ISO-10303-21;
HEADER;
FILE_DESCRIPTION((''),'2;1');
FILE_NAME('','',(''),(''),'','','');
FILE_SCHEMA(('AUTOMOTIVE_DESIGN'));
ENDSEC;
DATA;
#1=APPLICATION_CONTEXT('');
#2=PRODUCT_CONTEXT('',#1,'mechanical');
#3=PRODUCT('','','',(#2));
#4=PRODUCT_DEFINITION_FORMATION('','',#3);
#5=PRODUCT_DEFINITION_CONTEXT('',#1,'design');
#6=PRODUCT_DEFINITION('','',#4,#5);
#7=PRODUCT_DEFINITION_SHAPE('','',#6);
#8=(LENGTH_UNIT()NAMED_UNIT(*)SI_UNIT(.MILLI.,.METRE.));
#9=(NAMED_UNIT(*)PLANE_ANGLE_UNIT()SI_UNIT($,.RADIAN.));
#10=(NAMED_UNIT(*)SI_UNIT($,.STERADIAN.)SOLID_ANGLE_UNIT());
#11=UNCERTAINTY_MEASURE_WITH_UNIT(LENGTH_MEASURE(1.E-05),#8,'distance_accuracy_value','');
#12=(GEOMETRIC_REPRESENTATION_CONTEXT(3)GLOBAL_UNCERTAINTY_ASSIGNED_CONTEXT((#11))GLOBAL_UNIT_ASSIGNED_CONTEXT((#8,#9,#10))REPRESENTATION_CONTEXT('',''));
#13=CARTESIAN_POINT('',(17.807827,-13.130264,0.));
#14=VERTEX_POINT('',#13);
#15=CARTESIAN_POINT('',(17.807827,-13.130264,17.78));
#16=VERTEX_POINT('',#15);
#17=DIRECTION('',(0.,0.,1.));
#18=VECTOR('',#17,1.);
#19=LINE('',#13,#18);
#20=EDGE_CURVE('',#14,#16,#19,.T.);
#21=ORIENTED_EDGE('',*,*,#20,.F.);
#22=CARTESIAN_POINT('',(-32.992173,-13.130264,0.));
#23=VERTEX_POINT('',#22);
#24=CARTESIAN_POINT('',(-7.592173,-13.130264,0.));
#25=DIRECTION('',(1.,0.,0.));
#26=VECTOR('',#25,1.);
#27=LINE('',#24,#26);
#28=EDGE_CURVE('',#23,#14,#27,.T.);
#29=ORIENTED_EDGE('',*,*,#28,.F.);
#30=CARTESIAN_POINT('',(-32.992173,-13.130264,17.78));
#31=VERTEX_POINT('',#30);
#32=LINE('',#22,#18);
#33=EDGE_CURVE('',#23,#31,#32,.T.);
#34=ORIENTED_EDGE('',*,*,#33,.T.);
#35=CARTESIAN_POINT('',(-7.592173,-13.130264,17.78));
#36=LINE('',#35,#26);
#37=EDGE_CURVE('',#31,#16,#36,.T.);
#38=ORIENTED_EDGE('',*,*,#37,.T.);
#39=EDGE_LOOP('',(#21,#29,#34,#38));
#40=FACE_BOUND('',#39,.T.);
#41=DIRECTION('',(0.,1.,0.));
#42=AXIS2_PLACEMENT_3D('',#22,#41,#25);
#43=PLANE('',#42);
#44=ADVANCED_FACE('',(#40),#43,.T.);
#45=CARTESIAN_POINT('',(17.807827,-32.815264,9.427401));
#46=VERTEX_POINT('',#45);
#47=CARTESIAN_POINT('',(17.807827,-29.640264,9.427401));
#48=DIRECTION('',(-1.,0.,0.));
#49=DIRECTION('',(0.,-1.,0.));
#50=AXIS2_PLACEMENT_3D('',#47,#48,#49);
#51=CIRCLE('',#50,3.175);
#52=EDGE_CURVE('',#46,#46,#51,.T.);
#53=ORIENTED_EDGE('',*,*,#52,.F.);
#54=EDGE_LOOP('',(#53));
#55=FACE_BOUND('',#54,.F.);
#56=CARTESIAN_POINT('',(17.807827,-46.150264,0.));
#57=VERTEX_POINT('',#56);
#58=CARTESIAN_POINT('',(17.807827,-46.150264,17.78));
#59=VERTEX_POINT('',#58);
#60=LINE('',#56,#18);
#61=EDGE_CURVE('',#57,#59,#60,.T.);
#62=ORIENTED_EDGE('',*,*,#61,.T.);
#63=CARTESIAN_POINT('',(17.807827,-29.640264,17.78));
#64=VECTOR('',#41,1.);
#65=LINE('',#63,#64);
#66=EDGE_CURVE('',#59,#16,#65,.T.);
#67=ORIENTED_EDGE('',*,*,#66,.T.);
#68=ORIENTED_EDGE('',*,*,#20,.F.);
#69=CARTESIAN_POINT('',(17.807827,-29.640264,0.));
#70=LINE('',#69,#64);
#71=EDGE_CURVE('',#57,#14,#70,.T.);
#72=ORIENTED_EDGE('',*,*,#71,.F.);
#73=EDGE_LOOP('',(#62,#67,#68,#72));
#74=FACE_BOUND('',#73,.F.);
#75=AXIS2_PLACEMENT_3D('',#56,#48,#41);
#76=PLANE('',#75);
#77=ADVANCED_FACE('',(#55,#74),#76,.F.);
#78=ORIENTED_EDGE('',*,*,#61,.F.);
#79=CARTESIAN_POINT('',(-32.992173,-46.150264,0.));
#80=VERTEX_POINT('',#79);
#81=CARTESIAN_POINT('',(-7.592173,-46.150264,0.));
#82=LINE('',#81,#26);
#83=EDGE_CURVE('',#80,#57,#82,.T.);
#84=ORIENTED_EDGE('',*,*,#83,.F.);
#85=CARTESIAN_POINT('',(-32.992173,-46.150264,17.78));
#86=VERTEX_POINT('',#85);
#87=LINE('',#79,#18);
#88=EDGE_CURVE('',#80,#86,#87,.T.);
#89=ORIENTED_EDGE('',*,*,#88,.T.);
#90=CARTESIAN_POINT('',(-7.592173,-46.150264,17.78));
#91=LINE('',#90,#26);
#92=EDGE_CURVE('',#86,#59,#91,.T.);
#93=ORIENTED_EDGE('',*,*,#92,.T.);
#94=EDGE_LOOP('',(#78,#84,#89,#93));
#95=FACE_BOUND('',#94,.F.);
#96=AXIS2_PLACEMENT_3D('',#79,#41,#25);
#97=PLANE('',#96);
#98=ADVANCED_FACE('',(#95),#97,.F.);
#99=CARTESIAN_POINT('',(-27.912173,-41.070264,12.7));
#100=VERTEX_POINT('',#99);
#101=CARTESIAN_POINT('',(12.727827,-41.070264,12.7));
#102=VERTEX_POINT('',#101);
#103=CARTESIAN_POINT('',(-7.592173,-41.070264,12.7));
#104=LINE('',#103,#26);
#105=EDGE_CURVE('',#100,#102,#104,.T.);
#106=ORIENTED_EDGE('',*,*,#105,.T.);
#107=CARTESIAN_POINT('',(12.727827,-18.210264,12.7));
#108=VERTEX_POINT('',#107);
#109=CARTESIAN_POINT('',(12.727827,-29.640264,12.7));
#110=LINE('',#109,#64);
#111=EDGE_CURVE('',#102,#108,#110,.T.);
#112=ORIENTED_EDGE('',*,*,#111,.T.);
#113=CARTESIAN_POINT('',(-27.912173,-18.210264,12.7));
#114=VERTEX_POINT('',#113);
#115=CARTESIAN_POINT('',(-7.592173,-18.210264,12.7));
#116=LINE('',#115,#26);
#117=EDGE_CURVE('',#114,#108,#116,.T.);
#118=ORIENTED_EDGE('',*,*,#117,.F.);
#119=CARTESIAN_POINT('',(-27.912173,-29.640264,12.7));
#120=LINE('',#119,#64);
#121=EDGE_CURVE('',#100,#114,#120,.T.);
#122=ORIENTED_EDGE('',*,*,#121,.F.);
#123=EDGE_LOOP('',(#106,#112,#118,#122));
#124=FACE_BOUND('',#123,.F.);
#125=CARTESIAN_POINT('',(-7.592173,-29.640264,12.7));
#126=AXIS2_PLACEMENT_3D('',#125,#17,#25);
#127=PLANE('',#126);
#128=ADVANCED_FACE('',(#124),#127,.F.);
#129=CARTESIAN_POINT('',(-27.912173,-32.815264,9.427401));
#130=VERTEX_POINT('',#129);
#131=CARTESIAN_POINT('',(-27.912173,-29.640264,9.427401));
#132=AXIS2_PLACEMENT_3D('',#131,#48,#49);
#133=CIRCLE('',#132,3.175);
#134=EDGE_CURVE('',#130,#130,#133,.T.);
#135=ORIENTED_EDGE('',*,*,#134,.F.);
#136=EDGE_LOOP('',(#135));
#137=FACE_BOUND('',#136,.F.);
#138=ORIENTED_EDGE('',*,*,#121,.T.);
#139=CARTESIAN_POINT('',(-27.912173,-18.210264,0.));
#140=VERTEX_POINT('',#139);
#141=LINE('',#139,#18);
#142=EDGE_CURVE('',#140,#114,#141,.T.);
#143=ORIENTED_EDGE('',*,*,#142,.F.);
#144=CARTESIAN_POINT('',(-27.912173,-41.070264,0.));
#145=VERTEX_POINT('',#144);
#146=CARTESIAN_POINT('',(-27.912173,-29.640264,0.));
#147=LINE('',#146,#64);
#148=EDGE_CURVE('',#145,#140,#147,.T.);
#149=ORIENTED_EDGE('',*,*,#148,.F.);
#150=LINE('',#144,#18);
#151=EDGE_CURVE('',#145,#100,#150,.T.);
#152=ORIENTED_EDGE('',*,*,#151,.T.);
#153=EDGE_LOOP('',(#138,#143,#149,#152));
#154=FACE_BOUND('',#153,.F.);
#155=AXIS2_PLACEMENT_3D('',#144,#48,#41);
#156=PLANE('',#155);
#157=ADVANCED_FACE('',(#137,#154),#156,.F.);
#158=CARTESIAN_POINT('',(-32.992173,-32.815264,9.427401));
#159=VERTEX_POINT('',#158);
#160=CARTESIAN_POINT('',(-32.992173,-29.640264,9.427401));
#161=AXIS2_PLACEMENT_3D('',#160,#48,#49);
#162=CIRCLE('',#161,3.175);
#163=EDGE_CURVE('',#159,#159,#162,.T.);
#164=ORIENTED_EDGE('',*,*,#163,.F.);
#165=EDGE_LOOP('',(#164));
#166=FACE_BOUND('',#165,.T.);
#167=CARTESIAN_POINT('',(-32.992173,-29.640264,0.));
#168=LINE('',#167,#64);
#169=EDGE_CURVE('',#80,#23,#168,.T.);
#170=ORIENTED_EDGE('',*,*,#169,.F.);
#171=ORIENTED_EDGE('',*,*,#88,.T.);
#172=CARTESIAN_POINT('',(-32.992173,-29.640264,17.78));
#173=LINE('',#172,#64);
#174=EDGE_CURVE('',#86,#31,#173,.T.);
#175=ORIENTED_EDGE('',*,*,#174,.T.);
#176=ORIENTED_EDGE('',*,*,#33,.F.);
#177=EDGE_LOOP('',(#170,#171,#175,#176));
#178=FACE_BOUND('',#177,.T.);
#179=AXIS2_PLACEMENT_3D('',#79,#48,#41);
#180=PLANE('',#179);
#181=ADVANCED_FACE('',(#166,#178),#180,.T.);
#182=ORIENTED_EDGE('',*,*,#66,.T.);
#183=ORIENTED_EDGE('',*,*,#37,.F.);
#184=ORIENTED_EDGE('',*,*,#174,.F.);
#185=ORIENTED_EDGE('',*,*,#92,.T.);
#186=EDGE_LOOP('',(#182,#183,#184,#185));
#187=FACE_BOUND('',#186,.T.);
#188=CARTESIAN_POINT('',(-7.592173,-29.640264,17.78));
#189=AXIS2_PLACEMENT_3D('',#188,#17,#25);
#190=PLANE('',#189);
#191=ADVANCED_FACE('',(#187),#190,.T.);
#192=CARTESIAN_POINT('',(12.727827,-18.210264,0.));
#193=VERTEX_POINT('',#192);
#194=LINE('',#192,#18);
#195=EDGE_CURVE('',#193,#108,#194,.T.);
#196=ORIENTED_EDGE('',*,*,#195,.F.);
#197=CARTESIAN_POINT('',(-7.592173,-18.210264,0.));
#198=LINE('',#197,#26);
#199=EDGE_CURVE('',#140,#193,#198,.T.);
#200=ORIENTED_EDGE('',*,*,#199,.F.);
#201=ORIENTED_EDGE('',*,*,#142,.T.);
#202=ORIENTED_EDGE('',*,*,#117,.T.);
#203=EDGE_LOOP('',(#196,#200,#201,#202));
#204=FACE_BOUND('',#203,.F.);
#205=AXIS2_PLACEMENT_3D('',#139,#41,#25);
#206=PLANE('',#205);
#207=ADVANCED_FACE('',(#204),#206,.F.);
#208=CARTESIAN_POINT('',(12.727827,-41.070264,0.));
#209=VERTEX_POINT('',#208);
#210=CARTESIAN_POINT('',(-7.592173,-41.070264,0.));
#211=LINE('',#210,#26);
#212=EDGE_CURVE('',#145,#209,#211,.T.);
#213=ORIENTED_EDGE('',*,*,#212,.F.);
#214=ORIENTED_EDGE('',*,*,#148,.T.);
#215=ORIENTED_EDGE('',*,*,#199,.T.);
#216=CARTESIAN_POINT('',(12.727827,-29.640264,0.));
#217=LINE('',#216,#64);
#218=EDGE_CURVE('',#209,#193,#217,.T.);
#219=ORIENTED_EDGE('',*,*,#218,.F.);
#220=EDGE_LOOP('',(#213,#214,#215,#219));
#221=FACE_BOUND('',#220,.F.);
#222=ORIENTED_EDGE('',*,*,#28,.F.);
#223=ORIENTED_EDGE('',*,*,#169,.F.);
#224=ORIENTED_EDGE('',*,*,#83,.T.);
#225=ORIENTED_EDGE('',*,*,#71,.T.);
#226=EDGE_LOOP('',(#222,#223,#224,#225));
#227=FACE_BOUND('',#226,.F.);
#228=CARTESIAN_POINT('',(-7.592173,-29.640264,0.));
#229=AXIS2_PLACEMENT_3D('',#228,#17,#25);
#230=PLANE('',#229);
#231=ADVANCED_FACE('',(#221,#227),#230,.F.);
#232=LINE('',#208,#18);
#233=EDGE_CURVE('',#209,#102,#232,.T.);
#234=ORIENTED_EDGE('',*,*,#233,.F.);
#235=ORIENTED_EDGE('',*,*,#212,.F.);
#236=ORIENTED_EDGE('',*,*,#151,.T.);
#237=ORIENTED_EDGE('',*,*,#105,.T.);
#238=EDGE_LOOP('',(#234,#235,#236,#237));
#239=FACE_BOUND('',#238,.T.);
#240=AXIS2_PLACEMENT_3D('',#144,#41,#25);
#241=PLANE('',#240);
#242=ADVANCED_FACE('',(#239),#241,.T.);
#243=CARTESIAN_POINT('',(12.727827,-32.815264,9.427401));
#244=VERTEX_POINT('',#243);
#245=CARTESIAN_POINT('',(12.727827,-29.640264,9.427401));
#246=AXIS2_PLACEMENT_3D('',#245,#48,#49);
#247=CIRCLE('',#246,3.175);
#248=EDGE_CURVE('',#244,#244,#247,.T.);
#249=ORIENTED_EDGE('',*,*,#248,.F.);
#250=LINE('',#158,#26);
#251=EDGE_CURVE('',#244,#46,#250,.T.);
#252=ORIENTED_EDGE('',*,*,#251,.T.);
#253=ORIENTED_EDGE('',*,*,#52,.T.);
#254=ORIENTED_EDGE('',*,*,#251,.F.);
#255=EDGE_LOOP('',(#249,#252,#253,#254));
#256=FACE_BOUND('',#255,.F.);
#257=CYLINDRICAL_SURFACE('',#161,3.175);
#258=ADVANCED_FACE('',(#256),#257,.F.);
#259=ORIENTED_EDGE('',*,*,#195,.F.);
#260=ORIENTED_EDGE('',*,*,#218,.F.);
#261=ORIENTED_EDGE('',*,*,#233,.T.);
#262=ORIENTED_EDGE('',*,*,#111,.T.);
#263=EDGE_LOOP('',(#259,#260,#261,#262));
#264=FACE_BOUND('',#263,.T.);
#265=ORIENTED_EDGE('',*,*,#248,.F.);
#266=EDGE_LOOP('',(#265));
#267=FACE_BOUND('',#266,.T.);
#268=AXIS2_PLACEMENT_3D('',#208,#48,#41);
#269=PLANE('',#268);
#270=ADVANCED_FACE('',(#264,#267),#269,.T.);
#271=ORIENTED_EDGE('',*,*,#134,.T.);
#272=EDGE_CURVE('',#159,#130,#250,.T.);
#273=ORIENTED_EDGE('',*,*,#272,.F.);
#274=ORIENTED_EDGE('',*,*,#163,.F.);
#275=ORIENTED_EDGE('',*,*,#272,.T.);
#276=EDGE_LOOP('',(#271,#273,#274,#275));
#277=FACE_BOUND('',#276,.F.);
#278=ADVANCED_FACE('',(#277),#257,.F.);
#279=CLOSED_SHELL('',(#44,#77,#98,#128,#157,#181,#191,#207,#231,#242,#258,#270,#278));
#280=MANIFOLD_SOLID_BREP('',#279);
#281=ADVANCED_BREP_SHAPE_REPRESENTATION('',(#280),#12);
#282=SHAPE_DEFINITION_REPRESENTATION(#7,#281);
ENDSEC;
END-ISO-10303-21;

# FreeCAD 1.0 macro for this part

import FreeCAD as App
import Part
import Sketcher
from FreeCAD import Vector
Q = App.Units.Quantity


def add_polygon(sketch, points):
    """Adds a closed chain of lines whose ends are joined by coincident constraints."""
    first, n = sketch.GeometryCount, len(points)
    for a, b in zip(points, points[1:] + points[:1]):
        sketch.addGeometry(Part.LineSegment(App.Vector(*a, 0), App.Vector(*b, 0)), False)
    for i in range(n):
        sketch.addConstraint(Sketcher.Constraint("Coincident", first + i, 2, first + (i + 1) % n, 1))

doc = App.newDocument("Part")
body = doc.addObject("PartDesign::Body", "Body")

# Sketch on XY plane
sketch1 = body.newObject("Sketcher::SketchObject", "Sketch")
sketch1.AttachmentSupport = (doc.getObject("XY_Plane"), [""])
sketch1.MapMode = "FlatFace"
add_polygon(sketch1, [(-33, -13), (-33, -46), (18, -46), (18, -13)])  # lines 0-3
sketch1.addConstraint(Sketcher.Constraint("Vertical", 0))
sketch1.addConstraint(Sketcher.Constraint("Horizontal", 1))
sketch1.addConstraint(Sketcher.Constraint("Vertical", 2))
sketch1.addConstraint(Sketcher.Constraint("Horizontal", 3))
sketch1.addConstraint(Sketcher.Constraint("DistanceX", 1, 1, 1, 2, Q("2 in")))
sketch1.addConstraint(Sketcher.Constraint("DistanceY", 0, 2, 0, 1, Q("1.3 in")))
sketch1.addConstraint(Sketcher.Constraint("DistanceX", 0, 2, -1, 1, 32.992173))
sketch1.addConstraint(Sketcher.Constraint("DistanceY", 0, 2, -1, 1, 46.150264))
pad1 = body.newObject("PartDesign::Pad", "Pad")
pad1.Profile = sketch1
pad1.Length = Q("0.7 in")

# Sketch on XY plane
sketch2 = body.newObject("Sketcher::SketchObject", "Sketch001")
sketch2.AttachmentSupport = (doc.getObject("XY_Plane"), [""])
sketch2.MapMode = "FlatFace"
add_polygon(sketch2, [(-28, -18), (-28, -41), (13, -41), (13, -18)])  # lines 0-3
sketch2.addConstraint(Sketcher.Constraint("Vertical", 0))
sketch2.addConstraint(Sketcher.Constraint("Horizontal", 1))
sketch2.addConstraint(Sketcher.Constraint("Vertical", 2))
sketch2.addConstraint(Sketcher.Constraint("Horizontal", 3))
sketch2.addConstraint(Sketcher.Constraint("DistanceX", 1, 1, 1, 2, Q("1.6 in")))
sketch2.addConstraint(Sketcher.Constraint("DistanceY", 0, 2, 0, 1, Q("0.9 in")))
sketch2.addConstraint(Sketcher.Constraint("DistanceX", 0, 2, -1, 1, 27.912173))
sketch2.addConstraint(Sketcher.Constraint("DistanceY", 0, 2, -1, 1, 41.070264))
pocket1 = body.newObject("PartDesign::Pocket", "Pocket")
pocket1.Profile = sketch2
pocket1.Length = Q("0.5 in")
pocket1.Reversed = True

# Sketch on YZ plane
sketch3 = body.newObject("Sketcher::SketchObject", "Sketch002")
sketch3.AttachmentSupport = (doc.getObject("YZ_Plane"), [""])
sketch3.MapMode = "FlatFace"
sketch3.AttachmentOffset = App.Placement(Vector(0, 0, -32.992173), App.Rotation())
sketch3.addGeometry(Part.Circle(Vector(-29.6, 9.4, 0), Vector(0, 0, 1), 3.2), False)
sketch3.addConstraint(Sketcher.Constraint("Diameter", 0, Q("0.25 in")))
sketch3.addConstraint(Sketcher.Constraint("DistanceY", -1, 1, 0, 3, 9.427401))
sketch3.addConstraint(Sketcher.Constraint("DistanceX", 0, 3, -1, 1, 29.640264))
pocket2 = body.newObject("PartDesign::Pocket", "Pocket001")
pocket2.Profile = sketch3
pocket2.Length = Q("10 in")
pocket2.Reversed = True

doc.recompute()
